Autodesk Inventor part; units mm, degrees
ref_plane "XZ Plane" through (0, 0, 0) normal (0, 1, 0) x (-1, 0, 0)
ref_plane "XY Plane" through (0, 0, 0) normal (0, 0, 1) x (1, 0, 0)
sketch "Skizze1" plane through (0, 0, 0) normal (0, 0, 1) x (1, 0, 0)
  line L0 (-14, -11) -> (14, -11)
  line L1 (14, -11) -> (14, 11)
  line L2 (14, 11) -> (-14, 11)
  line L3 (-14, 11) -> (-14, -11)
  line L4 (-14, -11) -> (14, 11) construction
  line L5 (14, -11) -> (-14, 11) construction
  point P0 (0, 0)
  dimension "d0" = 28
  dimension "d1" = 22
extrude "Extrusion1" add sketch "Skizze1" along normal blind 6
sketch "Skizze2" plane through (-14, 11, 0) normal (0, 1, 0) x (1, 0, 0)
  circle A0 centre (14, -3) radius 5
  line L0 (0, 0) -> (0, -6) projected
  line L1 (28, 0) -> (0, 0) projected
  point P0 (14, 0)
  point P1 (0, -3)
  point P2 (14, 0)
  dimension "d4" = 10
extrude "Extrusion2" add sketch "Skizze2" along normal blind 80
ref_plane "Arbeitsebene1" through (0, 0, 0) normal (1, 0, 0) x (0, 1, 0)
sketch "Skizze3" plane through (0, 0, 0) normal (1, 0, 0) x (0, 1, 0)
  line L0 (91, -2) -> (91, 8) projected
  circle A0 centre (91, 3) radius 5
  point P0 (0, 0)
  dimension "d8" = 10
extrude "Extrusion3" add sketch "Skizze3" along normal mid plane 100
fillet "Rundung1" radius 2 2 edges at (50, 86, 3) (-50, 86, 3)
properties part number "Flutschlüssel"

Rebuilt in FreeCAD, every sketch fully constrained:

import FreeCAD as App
import Part
import Sketcher
Q = App.Units.Quantity


def edges_at(feature, points):
    """Names of the edges that pass closest to the given points."""
    edges = feature.Shape.Edges
    near = lambda p: min(range(len(edges)), key=lambda i: edges[i].distToShape(Part.Vertex(*p))[0])
    return sorted({f"Edge{near(p) + 1}" for p in points})

doc = App.newDocument("Part")
body = doc.addObject("PartDesign::Body", "Body")

# Sketch on XY plane
sketch1 = body.newObject("Sketcher::SketchObject", "Sketch")
sketch1.AttachmentSupport = (doc.getObject("XY_Plane"), [""])
sketch1.MapMode = "FlatFace"
sketch1.addGeometry(Part.LineSegment(App.Vector(-14, 11, 0), App.Vector(-14, -11, 0)), False)
sketch1.addGeometry(Part.LineSegment(App.Vector(-14, -11, 0), App.Vector(14, -11, 0)), False)
sketch1.addGeometry(Part.LineSegment(App.Vector(14, -11, 0), App.Vector(14, 11, 0)), False)
sketch1.addGeometry(Part.LineSegment(App.Vector(14, 11, 0), App.Vector(-14, 11, 0)), False)
sketch1.addConstraint(Sketcher.Constraint("Coincident", 0, 2, 1, 1))
sketch1.addConstraint(Sketcher.Constraint("Coincident", 1, 2, 2, 1))
sketch1.addConstraint(Sketcher.Constraint("Coincident", 2, 2, 3, 1))
sketch1.addConstraint(Sketcher.Constraint("Coincident", 3, 2, 0, 1))
sketch1.addConstraint(Sketcher.Constraint("Vertical", 0))
sketch1.addConstraint(Sketcher.Constraint("Horizontal", 1))
sketch1.addConstraint(Sketcher.Constraint("Vertical", 2))
sketch1.addConstraint(Sketcher.Constraint("Horizontal", 3))
sketch1.addConstraint(Sketcher.Constraint("Symmetric", 0, 2, 2, 2, -1, 1))
sketch1.addConstraint(Sketcher.Constraint("DistanceX", 1, 1, 1, 2, Q("28 mm")))
sketch1.addConstraint(Sketcher.Constraint("DistanceY", 0, 2, 0, 1, Q("22 mm")))
pad1 = body.newObject("PartDesign::Pad", "Pad")
pad1.Profile = sketch1
pad1.Length = 6

# Sketch on XZ plane
sketch2 = body.newObject("Sketcher::SketchObject", "Sketch001")
sketch2.AttachmentSupport = (doc.getObject("XZ_Plane"), [""])
sketch2.MapMode = "FlatFace"
sketch2.AttachmentOffset = App.Placement(App.Vector(0, 0, -11), App.Rotation())
sketch2.addGeometry(Part.Circle(App.Vector(0, 3, 0), App.Vector(0, 0, 1), 5), False)
sketch2.addConstraint(Sketcher.Constraint("PointOnObject", 0, 3, -2))
sketch2.addConstraint(Sketcher.Constraint("Diameter", 0, Q("10 mm")))
sketch2.addConstraint(Sketcher.Constraint("DistanceY", -1, 1, 0, 3, Q("3 mm")))
pad2 = body.newObject("PartDesign::Pad", "Pad001")
pad2.Profile = sketch2
pad2.Length = 80
pad2.Reversed = True

# Sketch on YZ plane
sketch3 = body.newObject("Sketcher::SketchObject", "Sketch002")
sketch3.AttachmentSupport = (doc.getObject("YZ_Plane"), [""])
sketch3.MapMode = "FlatFace"
sketch3.addGeometry(Part.Circle(App.Vector(91, 3, 0), App.Vector(0, 0, 1), 5), False)
sketch3.addConstraint(Sketcher.Constraint("Diameter", 0, Q("10 mm")))
sketch3.addConstraint(Sketcher.Constraint("DistanceX", -1, 1, 0, 3, Q("91 mm")))
sketch3.addConstraint(Sketcher.Constraint("DistanceY", -1, 1, 0, 3, Q("3 mm")))
pad3 = body.newObject("PartDesign::Pad", "Pad002")
pad3.Profile = sketch3
pad3.Length = 100
pad3.Midplane = True
doc.recompute()

fillet = body.newObject("PartDesign::Fillet", "Fillet")
fillet.Base = (pad3, edges_at(pad3, [(50, 86, 3), (-50, 86, 3)]))
fillet.Radius = 2

doc.recompute()
